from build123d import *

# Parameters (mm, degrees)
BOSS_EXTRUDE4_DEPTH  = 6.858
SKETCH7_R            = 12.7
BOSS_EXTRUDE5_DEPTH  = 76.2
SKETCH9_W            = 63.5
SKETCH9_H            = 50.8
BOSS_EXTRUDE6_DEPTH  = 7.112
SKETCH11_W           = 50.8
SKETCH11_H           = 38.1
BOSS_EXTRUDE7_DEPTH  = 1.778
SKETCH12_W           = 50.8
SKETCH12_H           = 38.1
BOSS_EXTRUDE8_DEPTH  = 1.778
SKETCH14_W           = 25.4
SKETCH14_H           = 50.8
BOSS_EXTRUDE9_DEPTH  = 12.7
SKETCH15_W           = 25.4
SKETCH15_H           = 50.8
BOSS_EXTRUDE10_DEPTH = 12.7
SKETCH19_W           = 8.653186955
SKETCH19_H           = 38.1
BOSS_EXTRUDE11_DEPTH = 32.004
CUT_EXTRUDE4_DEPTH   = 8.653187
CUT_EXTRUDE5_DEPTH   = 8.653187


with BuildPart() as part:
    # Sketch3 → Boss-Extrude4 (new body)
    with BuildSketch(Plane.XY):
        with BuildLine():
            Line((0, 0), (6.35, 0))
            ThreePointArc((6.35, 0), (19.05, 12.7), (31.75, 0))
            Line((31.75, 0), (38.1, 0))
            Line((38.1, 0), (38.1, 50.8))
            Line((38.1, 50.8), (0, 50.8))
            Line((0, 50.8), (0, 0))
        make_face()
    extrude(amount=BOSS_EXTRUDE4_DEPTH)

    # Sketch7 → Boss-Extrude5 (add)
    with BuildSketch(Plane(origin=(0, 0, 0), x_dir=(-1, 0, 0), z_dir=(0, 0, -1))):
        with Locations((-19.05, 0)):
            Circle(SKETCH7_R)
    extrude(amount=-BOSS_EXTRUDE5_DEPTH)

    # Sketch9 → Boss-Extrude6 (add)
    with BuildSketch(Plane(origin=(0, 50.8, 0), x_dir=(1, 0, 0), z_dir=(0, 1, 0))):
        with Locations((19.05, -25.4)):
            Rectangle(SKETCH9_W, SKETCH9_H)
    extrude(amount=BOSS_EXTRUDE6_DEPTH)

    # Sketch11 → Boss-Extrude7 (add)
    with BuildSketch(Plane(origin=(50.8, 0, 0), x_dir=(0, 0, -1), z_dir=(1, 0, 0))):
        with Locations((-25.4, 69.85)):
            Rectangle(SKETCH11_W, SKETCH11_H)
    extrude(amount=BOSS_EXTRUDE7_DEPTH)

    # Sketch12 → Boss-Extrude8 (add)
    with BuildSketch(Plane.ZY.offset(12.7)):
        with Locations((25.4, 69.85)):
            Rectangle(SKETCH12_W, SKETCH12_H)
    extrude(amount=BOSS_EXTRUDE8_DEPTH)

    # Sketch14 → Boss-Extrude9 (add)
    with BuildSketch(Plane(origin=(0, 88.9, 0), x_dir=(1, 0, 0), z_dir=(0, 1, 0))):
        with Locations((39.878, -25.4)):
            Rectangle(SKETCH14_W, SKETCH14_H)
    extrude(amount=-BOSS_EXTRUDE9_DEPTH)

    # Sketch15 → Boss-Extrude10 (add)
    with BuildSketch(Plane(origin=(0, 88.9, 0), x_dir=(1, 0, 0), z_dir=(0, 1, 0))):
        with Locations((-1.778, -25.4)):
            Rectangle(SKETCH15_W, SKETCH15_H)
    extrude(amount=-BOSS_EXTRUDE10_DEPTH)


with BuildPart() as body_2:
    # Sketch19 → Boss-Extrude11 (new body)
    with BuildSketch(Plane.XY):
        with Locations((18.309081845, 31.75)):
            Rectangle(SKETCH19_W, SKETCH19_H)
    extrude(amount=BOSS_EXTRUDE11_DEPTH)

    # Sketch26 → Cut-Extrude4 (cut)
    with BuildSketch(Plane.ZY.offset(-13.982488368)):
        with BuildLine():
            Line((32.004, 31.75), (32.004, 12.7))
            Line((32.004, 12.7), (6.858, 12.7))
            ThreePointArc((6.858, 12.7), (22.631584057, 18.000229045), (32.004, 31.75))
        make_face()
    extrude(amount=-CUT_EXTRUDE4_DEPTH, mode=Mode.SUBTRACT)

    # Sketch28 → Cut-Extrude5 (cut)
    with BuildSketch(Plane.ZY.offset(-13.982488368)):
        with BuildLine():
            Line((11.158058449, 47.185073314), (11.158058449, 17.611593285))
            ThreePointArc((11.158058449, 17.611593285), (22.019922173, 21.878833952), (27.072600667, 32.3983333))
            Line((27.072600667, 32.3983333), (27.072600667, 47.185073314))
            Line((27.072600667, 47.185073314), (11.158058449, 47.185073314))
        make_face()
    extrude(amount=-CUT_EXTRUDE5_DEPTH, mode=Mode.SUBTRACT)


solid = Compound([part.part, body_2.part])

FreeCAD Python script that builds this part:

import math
import FreeCAD as App
import Part
import Sketcher

V = App.Vector
Q = App.Units.Quantity

doc = App.newDocument("Part")
body = doc.addObject("PartDesign::Body", "Body")

sketch1 = body.newObject("Sketcher::SketchObject", "Sketch")
sketch1.AttachmentSupport = (doc.getObject("XY_Plane"), [""])
sketch1.MapMode = "FlatFace"
sketch1.addGeometry([
    Part.LineSegment(V(0, 0, 0), V(6.35, 0, 0)),
    Part.ArcOfCircle(Part.Circle(V(19.05, 0, 0), V(0, 0, 1), 12.7), math.radians(0), math.radians(180)),
    Part.LineSegment(V(31.75, 0, 0), V(38.1, 0, 0)),
    Part.LineSegment(V(38.1, 0, 0), V(38.1, 50.8, 0)),
    Part.LineSegment(V(38.1, 50.8, 0), V(0, 50.8, 0)),
    Part.LineSegment(V(0, 50.8, 0), V(0, 0, 0)),
], False)
sketch1.addConstraint([
    Sketcher.Constraint("Coincident", 0, 2, 1, 2),
    Sketcher.Constraint("Coincident", 1, 1, 2, 1),
    Sketcher.Constraint("Coincident", 2, 2, 3, 1),
    Sketcher.Constraint("Coincident", 3, 2, 4, 1),
    Sketcher.Constraint("Coincident", 4, 2, 5, 1),
    Sketcher.Constraint("Coincident", 5, 2, 0, 1),
    Sketcher.Constraint("Horizontal", 0),
    Sketcher.Constraint("Horizontal", 2),
    Sketcher.Constraint("Vertical", 3),
    Sketcher.Constraint("Horizontal", 4),
    Sketcher.Constraint("Vertical", 5),
    Sketcher.Constraint("Coincident", 5, 2, -1, 1),
    Sketcher.Constraint("PointOnObject", 1, 3, -1),
    Sketcher.Constraint("PointOnObject", 1, 1, -1),
    Sketcher.Constraint("Equal", 0, 2),
    Sketcher.Constraint("Radius", 1, Q("0.5 in")),
    Sketcher.Constraint("DistanceY", 3, 1, 3, 2, Q("2 in")),
    Sketcher.Constraint("DistanceX", 4, 2, 4, 1, Q("1.5 in")),
])
pad1 = body.newObject("PartDesign::Pad", "Pad")
pad1.Profile = sketch1
pad1.Length = Q("0.27 in")

sketch2 = body.newObject("Sketcher::SketchObject", "Sketch001")
sketch2.AttachmentSupport = (doc.getObject("XY_Plane"), [""])
sketch2.MapMode = "FlatFace"
sketch2.addGeometry(Part.Circle(V(19.05, 0, 0), V(0, 0, 1), 12.7), False)
sketch2.addConstraint([
    Sketcher.Constraint("PointOnObject", 0, 3, -1),
    Sketcher.Constraint("Diameter", 0, Q("1 in")),
    Sketcher.Constraint("DistanceX", -1, 1, 0, 3, Q("0.75 in")),
])
pad2 = body.newObject("PartDesign::Pad", "Pad001")
pad2.Profile = sketch2
pad2.Length = Q("3 in")

sketch3 = body.newObject("Sketcher::SketchObject", "Sketch002")
sketch3.AttachmentSupport = (doc.getObject("XZ_Plane"), [""])
sketch3.MapMode = "FlatFace"
sketch3.AttachmentOffset = App.Placement(V(0, 0, -2 * 25.4), App.Rotation())
sketch3.addGeometry([
    Part.LineSegment(V(-12.7, 0, 0), V(-12.7, 50.8, 0)),
    Part.LineSegment(V(-12.7, 50.8, 0), V(50.8, 50.8, 0)),
    Part.LineSegment(V(50.8, 50.8, 0), V(50.8, 0, 0)),
    Part.LineSegment(V(50.8, 0, 0), V(-12.7, 0, 0)),
], False)
sketch3.addConstraint([
    Sketcher.Constraint("Coincident", 0, 2, 1, 1),
    Sketcher.Constraint("Coincident", 1, 2, 2, 1),
    Sketcher.Constraint("Coincident", 2, 2, 3, 1),
    Sketcher.Constraint("Coincident", 3, 2, 0, 1),
    Sketcher.Constraint("Vertical", 0),
    Sketcher.Constraint("Horizontal", 1),
    Sketcher.Constraint("Vertical", 2),
    Sketcher.Constraint("Horizontal", 3),
    Sketcher.Constraint("PointOnObject", 2, 2, -1),
    Sketcher.Constraint("DistanceY", 0, 1, 0, 2, Q("2 in")),
    Sketcher.Constraint("DistanceX", 1, 1, 1, 2, Q("2.5 in")),
    Sketcher.Constraint("DistanceX", -1, 1, 1, 2, Q("2 in")),
])
pad3 = body.newObject("PartDesign::Pad", "Pad002")
pad3.Profile = sketch3
pad3.Length = Q("0.28 in")
pad3.Reversed = True

sketch4 = body.newObject("Sketcher::SketchObject", "Sketch003")
sketch4.AttachmentSupport = (doc.getObject("YZ_Plane"), [""])
sketch4.MapMode = "FlatFace"
sketch4.AttachmentOffset = App.Placement(V(0, 0, 2 * 25.4), App.Rotation())
sketch4.addGeometry([
    Part.LineSegment(V(88.9, 50.8, 0), V(50.8, 50.8, 0)),
    Part.LineSegment(V(50.8, 50.8, 0), V(50.8, 0, 0)),
    Part.LineSegment(V(50.8, 0, 0), V(88.9, 0, 0)),
    Part.LineSegment(V(88.9, 0, 0), V(88.9, 50.8, 0)),
], False)
sketch4.addConstraint([
    Sketcher.Constraint("Coincident", 0, 2, 1, 1),
    Sketcher.Constraint("Coincident", 1, 2, 2, 1),
    Sketcher.Constraint("Coincident", 2, 2, 3, 1),
    Sketcher.Constraint("Coincident", 3, 2, 0, 1),
    Sketcher.Constraint("Horizontal", 0),
    Sketcher.Constraint("Vertical", 1),
    Sketcher.Constraint("Horizontal", 2),
    Sketcher.Constraint("Vertical", 3),
    Sketcher.Constraint("PointOnObject", 1, 2, -1),
    Sketcher.Constraint("DistanceY", 1, 2, 1, 1, Q("2 in")),
    Sketcher.Constraint("DistanceX", 0, 2, 0, 1, Q("1.5 in")),
    Sketcher.Constraint("DistanceX", -1, 1, 0, 2, Q("2 in")),
])
pad4 = body.newObject("PartDesign::Pad", "Pad003")
pad4.Profile = sketch4
pad4.Length = Q("0.07 in")

sketch5 = body.newObject("Sketcher::SketchObject", "Sketch004")
sketch5.AttachmentSupport = (doc.getObject("YZ_Plane"), [""])
sketch5.MapMode = "FlatFace"
sketch5.AttachmentOffset = App.Placement(V(0, 0, -0.5 * 25.4), App.Rotation())
sketch5.addGeometry([
    Part.LineSegment(V(88.9, 0, 0), V(50.8, 0, 0)),
    Part.LineSegment(V(50.8, 0, 0), V(50.8, 50.8, 0)),
    Part.LineSegment(V(50.8, 50.8, 0), V(88.9, 50.8, 0)),
    Part.LineSegment(V(88.9, 50.8, 0), V(88.9, 0, 0)),
], False)
sketch5.addConstraint([
    Sketcher.Constraint("Coincident", 0, 2, 1, 1),
    Sketcher.Constraint("Coincident", 1, 2, 2, 1),
    Sketcher.Constraint("Coincident", 2, 2, 3, 1),
    Sketcher.Constraint("Coincident", 3, 2, 0, 1),
    Sketcher.Constraint("Horizontal", 0),
    Sketcher.Constraint("Vertical", 1),
    Sketcher.Constraint("Horizontal", 2),
    Sketcher.Constraint("Vertical", 3),
    Sketcher.Constraint("PointOnObject", 0, 2, -1),
    Sketcher.Constraint("DistanceY", 1, 1, 1, 2, Q("2 in")),
    Sketcher.Constraint("DistanceX", 0, 2, 0, 1, Q("1.5 in")),
    Sketcher.Constraint("DistanceX", -1, 1, 0, 2, Q("2 in")),
])
pad5 = body.newObject("PartDesign::Pad", "Pad004")
pad5.Profile = sketch5
pad5.Length = Q("0.07 in")
pad5.Reversed = True

sketch6 = body.newObject("Sketcher::SketchObject", "Sketch005")
sketch6.AttachmentSupport = (doc.getObject("XZ_Plane"), [""])
sketch6.MapMode = "FlatFace"
sketch6.AttachmentOffset = App.Placement(V(0, 0, -3.5 * 25.4), App.Rotation())
sketch6.addGeometry([
    Part.LineSegment(V(27.178, 0, 0), V(27.178, 50.8, 0)),
    Part.LineSegment(V(27.178, 50.8, 0), V(52.578, 50.8, 0)),
    Part.LineSegment(V(52.578, 50.8, 0), V(52.578, 0, 0)),
    Part.LineSegment(V(52.578, 0, 0), V(27.178, 0, 0)),
], False)
sketch6.addConstraint([
    Sketcher.Constraint("Coincident", 0, 2, 1, 1),
    Sketcher.Constraint("Coincident", 1, 2, 2, 1),
    Sketcher.Constraint("Coincident", 2, 2, 3, 1),
    Sketcher.Constraint("Coincident", 3, 2, 0, 1),
    Sketcher.Constraint("Vertical", 0),
    Sketcher.Constraint("Horizontal", 1),
    Sketcher.Constraint("Vertical", 2),
    Sketcher.Constraint("Horizontal", 3),
    Sketcher.Constraint("PointOnObject", 2, 2, -1),
    Sketcher.Constraint("DistanceX", 1, 1, 1, 2, Q("1 in")),
    Sketcher.Constraint("DistanceY", 0, 1, 0, 2, Q("2 in")),
    Sketcher.Constraint("DistanceX", -1, 1, 0, 2, Q("1.07 in")),
])
pad6 = body.newObject("PartDesign::Pad", "Pad005")
pad6.Profile = sketch6
pad6.Length = Q("0.5 in")

sketch7 = body.newObject("Sketcher::SketchObject", "Sketch006")
sketch7.AttachmentSupport = (doc.getObject("XZ_Plane"), [""])
sketch7.MapMode = "FlatFace"
sketch7.AttachmentOffset = App.Placement(V(0, 0, -3.5 * 25.4), App.Rotation())
sketch7.addGeometry([
    Part.LineSegment(V(-14.478, 0, 0), V(-14.478, 50.8, 0)),
    Part.LineSegment(V(-14.478, 50.8, 0), V(10.922, 50.8, 0)),
    Part.LineSegment(V(10.922, 50.8, 0), V(10.922, 0, 0)),
    Part.LineSegment(V(10.922, 0, 0), V(-14.478, 0, 0)),
], False)
sketch7.addConstraint([
    Sketcher.Constraint("Coincident", 0, 2, 1, 1),
    Sketcher.Constraint("Coincident", 1, 2, 2, 1),
    Sketcher.Constraint("Coincident", 2, 2, 3, 1),
    Sketcher.Constraint("Coincident", 3, 2, 0, 1),
    Sketcher.Constraint("Vertical", 0),
    Sketcher.Constraint("Horizontal", 1),
    Sketcher.Constraint("Vertical", 2),
    Sketcher.Constraint("Horizontal", 3),
    Sketcher.Constraint("PointOnObject", 2, 2, -1),
    Sketcher.Constraint("DistanceX", 1, 1, 1, 2, Q("1 in")),
    Sketcher.Constraint("DistanceY", 0, 1, 0, 2, Q("2 in")),
    Sketcher.Constraint("DistanceX", 0, 2, -1, 1, Q("0.57 in")),
])
pad7 = body.newObject("PartDesign::Pad", "Pad006")
pad7.Profile = sketch7
pad7.Length = Q("0.5 in")
body2 = doc.addObject("PartDesign::Body", "Body001")

sketch8 = body2.newObject("Sketcher::SketchObject", "Sketch007")
sketch8.AttachmentSupport = (doc.getObject("XY_Plane001"), [""])
sketch8.MapMode = "FlatFace"
sketch8.addGeometry([
    Part.LineSegment(V(13.982488, 50.8, 0), V(13.982488, 12.7, 0)),
    Part.LineSegment(V(13.982488, 12.7, 0), V(22.635675, 12.7, 0)),
    Part.LineSegment(V(22.635675, 12.7, 0), V(22.635675, 50.8, 0)),
    Part.LineSegment(V(22.635675, 50.8, 0), V(13.982488, 50.8, 0)),
], False)
sketch8.addConstraint([
    Sketcher.Constraint("Coincident", 0, 2, 1, 1),
    Sketcher.Constraint("Coincident", 1, 2, 2, 1),
    Sketcher.Constraint("Coincident", 2, 2, 3, 1),
    Sketcher.Constraint("Coincident", 3, 2, 0, 1),
    Sketcher.Constraint("Vertical", 0),
    Sketcher.Constraint("Horizontal", 1),
    Sketcher.Constraint("Vertical", 2),
    Sketcher.Constraint("Horizontal", 3),
    Sketcher.Constraint("DistanceY", 0, 2, 0, 1, Q("1.5 in")),
    Sketcher.Constraint("DistanceY", -1, 1, 2, 2, Q("2 in")),
    Sketcher.Constraint("DistanceX", 1, 1, 1, 2, 8.653187),
    Sketcher.Constraint("DistanceX", -1, 1, 0, 2, 13.982488),
])
pad8 = body2.newObject("PartDesign::Pad", "Pad007")
pad8.Profile = sketch8
pad8.Length = Q("1.26 in")

sketch9 = body2.newObject("Sketcher::SketchObject", "Sketch008")
sketch9.AttachmentSupport = (doc.getObject("YZ_Plane001"), [""])
sketch9.MapMode = "FlatFace"
sketch9.AttachmentOffset = App.Placement(V(0, 0, 13.982488), App.Rotation())
sketch9.addGeometry([
    Part.LineSegment(V(12.7, 32.004, 0), V(31.75, 32.004, 0)),
    Part.ArcOfCircle(Part.Circle(V(38.82136, 6.858, 0), V(0, 0, 1), 26.12136), math.radians(105.706627), math.radians(180)),
    Part.LineSegment(V(12.7, 6.858, 0), V(12.7, 32.004, 0)),
], False)
sketch9.addConstraint([
    Sketcher.Constraint("Coincident", 0, 2, 1, 1),
    Sketcher.Constraint("Tangent", 1, 2, 2, 1),
    Sketcher.Constraint("Coincident", 2, 2, 0, 1),
    Sketcher.Constraint("Horizontal", 0),
    Sketcher.Constraint("Vertical", 2),
    Sketcher.Constraint("DistanceX", 0, 1, 0, 2, Q("0.75 in")),
    Sketcher.Constraint("DistanceY", 2, 1, 2, 2, Q("0.99 in")),
    Sketcher.Constraint("DistanceX", -1, 1, 1, 2, Q("0.5 in")),
    Sketcher.Constraint("DistanceY", -1, 1, 1, 3, Q("0.27 in")),
])
pocket1 = body2.newObject("PartDesign::Pocket", "Pocket")
pocket1.Profile = sketch9
pocket1.Length = 8.653187
pocket1.Reversed = True

sketch10 = body2.newObject("Sketcher::SketchObject", "Sketch009")
sketch10.AttachmentSupport = (doc.getObject("YZ_Plane001"), [""])
sketch10.MapMode = "FlatFace"
sketch10.AttachmentOffset = App.Placement(V(0, 0, 13.982488), App.Rotation())
sketch10.addGeometry([
    Part.LineSegment(V(47.185073, 11.158058, 0), V(17.611593, 11.158058, 0)),
    Part.ArcOfCircle(Part.Circle(V(33.569145, 11.158058, 0), V(0, 0, 1), 15.957552), math.radians(94.207594), math.radians(180)),
    Part.LineSegment(V(32.398333, 27.072601, 0), V(47.185073, 27.072601, 0)),
    Part.LineSegment(V(47.185073, 27.072601, 0), V(47.185073, 11.158058, 0)),
], False)
sketch10.addConstraint([
    Sketcher.Constraint("Coincident", 0, 2, 1, 2),
    Sketcher.Constraint("Coincident", 1, 1, 2, 1),
    Sketcher.Constraint("Coincident", 2, 2, 3, 1),
    Sketcher.Constraint("Coincident", 3, 2, 0, 1),
    Sketcher.Constraint("Horizontal", 0),
    Sketcher.Constraint("Horizontal", 2),
    Sketcher.Constraint("Vertical", 3),
    Sketcher.Constraint("Horizontal", 1, 3, 0, 2),
    Sketcher.Constraint("Radius", 1, 15.957552),
    Sketcher.Constraint("DistanceX", 0, 2, 0, 1, 29.57348),
    Sketcher.Constraint("DistanceX", 2, 1, 2, 2, 14.78674),
    Sketcher.Constraint("DistanceY", -1, 1, 1, 1, 27.072601),
    Sketcher.Constraint("DistanceX", -1, 1, 1, 3, 33.569145),
])
pocket2 = body2.newObject("PartDesign::Pocket", "Pocket001")
pocket2.Profile = sketch10
pocket2.Length = 8.653187
pocket2.Reversed = True

doc.recompute()
